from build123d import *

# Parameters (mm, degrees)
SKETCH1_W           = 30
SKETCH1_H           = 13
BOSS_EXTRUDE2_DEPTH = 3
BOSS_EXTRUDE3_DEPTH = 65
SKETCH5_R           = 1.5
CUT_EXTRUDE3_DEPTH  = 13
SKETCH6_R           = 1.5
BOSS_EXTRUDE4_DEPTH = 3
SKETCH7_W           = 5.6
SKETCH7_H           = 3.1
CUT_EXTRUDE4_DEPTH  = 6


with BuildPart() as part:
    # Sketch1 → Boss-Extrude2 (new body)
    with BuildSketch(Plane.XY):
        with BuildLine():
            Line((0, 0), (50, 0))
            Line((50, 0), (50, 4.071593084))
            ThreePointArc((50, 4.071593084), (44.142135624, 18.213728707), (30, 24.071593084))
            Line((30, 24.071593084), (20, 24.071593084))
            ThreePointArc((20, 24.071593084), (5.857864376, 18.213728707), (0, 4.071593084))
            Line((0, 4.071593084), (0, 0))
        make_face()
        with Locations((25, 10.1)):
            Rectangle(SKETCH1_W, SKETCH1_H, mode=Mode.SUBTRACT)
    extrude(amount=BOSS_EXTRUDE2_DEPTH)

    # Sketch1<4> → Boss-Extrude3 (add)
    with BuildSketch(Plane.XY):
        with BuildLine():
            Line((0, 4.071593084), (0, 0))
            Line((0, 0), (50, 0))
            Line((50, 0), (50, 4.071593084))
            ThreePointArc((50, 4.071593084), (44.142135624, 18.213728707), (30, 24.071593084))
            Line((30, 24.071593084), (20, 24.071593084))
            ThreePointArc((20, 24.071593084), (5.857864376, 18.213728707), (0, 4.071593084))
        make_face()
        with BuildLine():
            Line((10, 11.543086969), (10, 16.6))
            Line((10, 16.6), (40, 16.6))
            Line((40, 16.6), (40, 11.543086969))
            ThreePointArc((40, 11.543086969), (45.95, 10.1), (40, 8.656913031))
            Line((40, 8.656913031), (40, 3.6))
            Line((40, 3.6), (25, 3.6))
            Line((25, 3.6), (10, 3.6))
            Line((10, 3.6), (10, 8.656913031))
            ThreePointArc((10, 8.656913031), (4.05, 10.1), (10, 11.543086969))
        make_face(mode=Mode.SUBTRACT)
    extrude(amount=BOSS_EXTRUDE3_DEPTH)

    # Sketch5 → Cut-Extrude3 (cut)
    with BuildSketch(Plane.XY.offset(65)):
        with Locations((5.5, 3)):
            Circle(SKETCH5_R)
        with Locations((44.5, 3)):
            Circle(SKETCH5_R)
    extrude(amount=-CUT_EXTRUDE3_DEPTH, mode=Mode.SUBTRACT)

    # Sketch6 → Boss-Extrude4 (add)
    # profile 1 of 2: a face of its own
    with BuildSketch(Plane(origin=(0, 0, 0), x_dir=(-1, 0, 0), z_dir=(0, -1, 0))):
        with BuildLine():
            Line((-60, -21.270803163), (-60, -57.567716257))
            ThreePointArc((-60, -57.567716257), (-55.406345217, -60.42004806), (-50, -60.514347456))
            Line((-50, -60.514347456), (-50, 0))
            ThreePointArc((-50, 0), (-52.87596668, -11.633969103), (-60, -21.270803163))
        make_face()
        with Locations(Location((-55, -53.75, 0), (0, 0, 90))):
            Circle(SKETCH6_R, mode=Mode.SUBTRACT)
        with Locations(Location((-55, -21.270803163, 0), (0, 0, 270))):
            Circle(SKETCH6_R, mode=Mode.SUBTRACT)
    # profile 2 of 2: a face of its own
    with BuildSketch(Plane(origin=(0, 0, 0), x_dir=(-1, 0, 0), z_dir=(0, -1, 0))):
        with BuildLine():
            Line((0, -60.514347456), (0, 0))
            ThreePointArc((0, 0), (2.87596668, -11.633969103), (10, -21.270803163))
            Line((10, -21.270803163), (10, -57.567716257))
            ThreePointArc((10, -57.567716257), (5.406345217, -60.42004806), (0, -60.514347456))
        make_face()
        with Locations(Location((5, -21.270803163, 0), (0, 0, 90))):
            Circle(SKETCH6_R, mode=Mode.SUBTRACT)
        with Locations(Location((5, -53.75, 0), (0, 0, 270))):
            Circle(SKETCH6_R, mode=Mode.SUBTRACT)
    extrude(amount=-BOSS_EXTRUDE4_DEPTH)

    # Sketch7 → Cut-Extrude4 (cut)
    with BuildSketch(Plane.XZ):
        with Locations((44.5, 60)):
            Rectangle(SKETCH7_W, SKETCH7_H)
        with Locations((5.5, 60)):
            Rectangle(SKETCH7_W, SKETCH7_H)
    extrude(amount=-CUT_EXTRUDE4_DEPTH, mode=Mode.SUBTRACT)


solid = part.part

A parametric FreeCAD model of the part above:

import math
import FreeCAD as App
import Part
import Sketcher
from FreeCAD import Vector
Q = App.Units.Quantity

doc = App.newDocument("Part")
params = doc.addObject("Spreadsheet::Sheet", "Params")
for row, (alias, value) in enumerate([
    ("sketch1_radius", "20 mm"),
    ("sketch1_width", "50 mm"),
    ("sketch1_width2", "30 mm"),
    ("sketch1_height", "13 mm"),
    ("pad1_length", "3 mm"),
    ("sketch2_radius", "20 mm"),
    ("sketch2_width", "50 mm"),
    ("sketch2_width2", "30 mm"),
    ("sketch2_radius2", "3.15 mm"),
    ("pad2_length", "65 mm"),
    ("sketch3_diameter", "3 mm"),
    ("pocket1_length", "13 mm"),
    ("sketch4_diameter", "3 mm"),
    ("pad3_length", "3 mm"),
    ("sketch5_width", "5.6 mm"),
    ("sketch5_height", "3.1 mm"),
    ("pocket2_length", "6 mm"),
], start=1):
    params.set(f"A{row}", alias)
    params.set(f"B{row}", "=" + value)
    params.setAlias(f"B{row}", alias)

body = doc.addObject("PartDesign::Body", "Body")

sketch1 = body.newObject("Sketcher::SketchObject", "Sketch")
sketch1.AttachmentSupport = (doc.getObject("XY_Plane"), [""])
sketch1.MapMode = "FlatFace"
sketch1.addGeometry([
    Part.LineSegment(Vector(0, 0, 0), Vector(50, 0, 0)),
    Part.LineSegment(Vector(50, 0, 0), Vector(50, 4.1, 0)),
    Part.ArcOfCircle(Part.Circle(Vector(30, 4.1, 0), Vector(0, 0, 1), 20), math.radians(0), math.radians(90)),
    Part.LineSegment(Vector(30, 24.1, 0), Vector(20, 24.1, 0)),
    Part.ArcOfCircle(Part.Circle(Vector(20, 4.1, 0), Vector(0, 0, 1), 20), math.radians(90), math.radians(180)),
    Part.LineSegment(Vector(0, 4.1, 0), Vector(0, 0, 0)),
    Part.LineSegment(Vector(40, 3.6, 0), Vector(10, 3.6, 0)),
    Part.LineSegment(Vector(10, 3.6, 0), Vector(10, 16.6, 0)),
    Part.LineSegment(Vector(10, 16.6, 0), Vector(40, 16.6, 0)),
    Part.LineSegment(Vector(40, 16.6, 0), Vector(40, 3.6, 0)),
], False)
sketch1.addConstraint([
    Sketcher.Constraint("Coincident", 0, 2, 1, 1),
    Sketcher.Constraint("Tangent", 1, 2, 2, 1),
    Sketcher.Constraint("Tangent", 2, 2, 3, 1),
    Sketcher.Constraint("Tangent", 3, 2, 4, 1),
    Sketcher.Constraint("Tangent", 4, 2, 5, 1),
    Sketcher.Constraint("Coincident", 5, 2, 0, 1),
    Sketcher.Constraint("Coincident", 6, 2, 7, 1),
    Sketcher.Constraint("Coincident", 7, 2, 8, 1),
    Sketcher.Constraint("Coincident", 8, 2, 9, 1),
    Sketcher.Constraint("Coincident", 9, 2, 6, 1),
    Sketcher.Constraint("Horizontal", 0),
    Sketcher.Constraint("Vertical", 1),
    Sketcher.Constraint("Horizontal", 3),
    Sketcher.Constraint("Vertical", 5),
    Sketcher.Constraint("Horizontal", 6),
    Sketcher.Constraint("Vertical", 7),
    Sketcher.Constraint("Horizontal", 8),
    Sketcher.Constraint("Vertical", 9),
    Sketcher.Constraint("Coincident", 5, 2, -1, 1),
    Sketcher.Constraint("Equal", 2, 4),
    Sketcher.Constraint("Radius", 2, Q("20 mm")),
    Sketcher.Constraint("DistanceX", 0, 1, 0, 2, Q("50 mm")),
    Sketcher.Constraint("DistanceX", 6, 2, 6, 1, Q("30 mm")),
    Sketcher.Constraint("DistanceY", 7, 1, 7, 2, Q("13 mm")),
    Sketcher.Constraint("DistanceX", -1, 1, 6, 2, Q("10 mm")),
    Sketcher.Constraint("DistanceY", -1, 1, 6, 2, Q("3.6 mm")),
    Sketcher.Constraint("DistanceY", 1, 1, 1, 2, Q("4.071593 mm")),
])
sketch1.setExpression("Constraints[20]", "Params.sketch1_radius")
sketch1.setExpression("Constraints[21]", "Params.sketch1_width")
sketch1.setExpression("Constraints[22]", "Params.sketch1_width2")
sketch1.setExpression("Constraints[23]", "Params.sketch1_height")
pad1 = body.newObject("PartDesign::Pad", "Pad")
pad1.Profile = sketch1
pad1.setExpression("Length", "Params.pad1_length")

sketch2 = body.newObject("Sketcher::SketchObject", "Sketch001")
sketch2.AttachmentSupport = (doc.getObject("XY_Plane"), [""])
sketch2.MapMode = "FlatFace"
sketch2.addGeometry([
    Part.LineSegment(Vector(0, 4.1, 0), Vector(0, 0, 0)),
    Part.LineSegment(Vector(0, 0, 0), Vector(50, 0, 0)),
    Part.LineSegment(Vector(50, 0, 0), Vector(50, 4.1, 0)),
    Part.ArcOfCircle(Part.Circle(Vector(30, 4.1, 0), Vector(0, 0, 1), 20), math.radians(0), math.radians(90)),
    Part.LineSegment(Vector(30, 24.1, 0), Vector(20, 24.1, 0)),
    Part.ArcOfCircle(Part.Circle(Vector(20, 4.1, 0), Vector(0, 0, 1), 20), math.radians(90), math.radians(180)),
    Part.ArcOfCircle(Part.Circle(Vector(7.2, 10.1, 0), Vector(0, 0, 1), 3.1), math.radians(27), math.radians(333)),
    Part.LineSegment(Vector(10, 11.5, 0), Vector(10, 16.6, 0)),
    Part.LineSegment(Vector(10, 16.6, 0), Vector(40, 16.6, 0)),
    Part.LineSegment(Vector(40, 16.6, 0), Vector(40, 11.5, 0)),
    Part.ArcOfCircle(Part.Circle(Vector(42.8, 10.1, 0), Vector(0, 0, 1), 3.1), math.radians(-153), math.radians(153)),
    Part.LineSegment(Vector(40, 8.7, 0), Vector(40, 3.6, 0)),
    Part.LineSegment(Vector(40, 3.6, 0), Vector(10, 3.6, 0)),
    Part.LineSegment(Vector(10, 3.6, 0), Vector(10, 8.7, 0)),
], False)
sketch2.addConstraint([
    Sketcher.Constraint("Coincident", 0, 2, 1, 1),
    Sketcher.Constraint("Coincident", 1, 2, 2, 1),
    Sketcher.Constraint("Tangent", 2, 2, 3, 1),
    Sketcher.Constraint("Tangent", 3, 2, 4, 1),
    Sketcher.Constraint("Tangent", 4, 2, 5, 1),
    Sketcher.Constraint("Tangent", 5, 2, 0, 1),
    Sketcher.Constraint("Coincident", 6, 1, 7, 1),
    Sketcher.Constraint("Coincident", 7, 2, 8, 1),
    Sketcher.Constraint("Coincident", 8, 2, 9, 1),
    Sketcher.Constraint("Coincident", 9, 2, 10, 2),
    Sketcher.Constraint("Coincident", 10, 1, 11, 1),
    Sketcher.Constraint("Coincident", 11, 2, 12, 1),
    Sketcher.Constraint("Coincident", 12, 2, 13, 1),
    Sketcher.Constraint("Coincident", 13, 2, 6, 2),
    Sketcher.Constraint("Vertical", 0),
    Sketcher.Constraint("Horizontal", 1),
    Sketcher.Constraint("Vertical", 2),
    Sketcher.Constraint("Horizontal", 4),
    Sketcher.Constraint("Vertical", 7),
    Sketcher.Constraint("Horizontal", 8),
    Sketcher.Constraint("Vertical", 9),
    Sketcher.Constraint("Vertical", 11),
    Sketcher.Constraint("Horizontal", 12),
    Sketcher.Constraint("Vertical", 13),
    Sketcher.Constraint("Coincident", 0, 2, -1, 1),
    Sketcher.Constraint("Equal", 3, 5),
    Sketcher.Constraint("Equal", 6, 10),
    Sketcher.Constraint("Horizontal", 6, 3, 10, 3),
    Sketcher.Constraint("Horizontal", 6, 1, 9, 2),
    Sketcher.Constraint("Horizontal", 10, 1, 13, 2),
    Sketcher.Constraint("Vertical", 9, 2, 10, 1),
    Sketcher.Constraint("Equal", 9, 11),
    Sketcher.Constraint("Radius", 3, Q("20 mm")),
    Sketcher.Constraint("DistanceX", 1, 1, 1, 2, Q("50 mm")),
    Sketcher.Constraint("DistanceX", 8, 1, 8, 2, Q("30 mm")),
    Sketcher.Constraint("Radius", 6, Q("3.15 mm")),
    Sketcher.Constraint("DistanceX", -1, 1, 6, 1, Q("10 mm")),
    Sketcher.Constraint("DistanceX", -1, 1, 6, 3, Q("7.2 mm")),
    Sketcher.Constraint("DistanceY", -1, 1, 6, 3, Q("10.1 mm")),
    Sketcher.Constraint("DistanceY", -1, 1, 7, 2, Q("16.6 mm")),
    Sketcher.Constraint("DistanceY", 0, 2, 0, 1, Q("4.071593 mm")),
])
sketch2.setExpression("Constraints[32]", "Params.sketch2_radius")
sketch2.setExpression("Constraints[33]", "Params.sketch2_width")
sketch2.setExpression("Constraints[34]", "Params.sketch2_width2")
sketch2.setExpression("Constraints[35]", "Params.sketch2_radius2")
pad2 = body.newObject("PartDesign::Pad", "Pad001")
pad2.Profile = sketch2
pad2.setExpression("Length", "Params.pad2_length")

sketch3 = body.newObject("Sketcher::SketchObject", "Sketch002")
sketch3.AttachmentSupport = (doc.getObject("XY_Plane"), [""])
sketch3.MapMode = "FlatFace"
sketch3.AttachmentOffset = App.Placement(Vector(0, 0, 65), App.Rotation())
sketch3.addGeometry([
    Part.Circle(Vector(5.5, 3, 0), Vector(0, 0, 1), 1.5),
    Part.Circle(Vector(44.5, 3, 0), Vector(0, 0, 1), 1.5),
], False)
sketch3.addConstraint([
    Sketcher.Constraint("Equal", 0, 1),
    Sketcher.Constraint("Horizontal", 0, 3, 1, 3),
    Sketcher.Constraint("Diameter", 0, Q("3 mm")),
    Sketcher.Constraint("DistanceY", -1, 1, 0, 3, Q("3 mm")),
    Sketcher.Constraint("DistanceX", 0, 3, 1, 3, Q("39 mm")),
    Sketcher.Constraint("DistanceX", -1, 1, 0, 3, Q("5.5 mm")),
])
sketch3.setExpression("Constraints[2]", "Params.sketch3_diameter")
pocket1 = body.newObject("PartDesign::Pocket", "Pocket")
pocket1.Profile = sketch3
pocket1.setExpression("Length", "Params.pocket1_length")

sketch4 = body.newObject("Sketcher::SketchObject", "Sketch003")
sketch4.AttachmentSupport = (doc.getObject("XZ_Plane"), [""])
sketch4.MapMode = "FlatFace"
sketch4.addGeometry([
    Part.LineSegment(Vector(60, 21.3, 0), Vector(60, 57.6, 0)),
    Part.ArcOfCircle(Part.Circle(Vector(52.5, 50.7, 0), Vector(0, 0, 1), 10.2), math.radians(43), math.radians(104)),
    Part.LineSegment(Vector(50, 60.5, 0), Vector(50, 0, 0)),
    Part.ArcOfCircle(Part.Circle(Vector(80.6, -1.4, 0), Vector(0, 0, 1), 30.6), math.radians(132), math.radians(177)),
    Part.Circle(Vector(55, 53.8, 0), Vector(0, 0, 1), 1.5),
    Part.Circle(Vector(55, 21.3, 0), Vector(0, 0, 1), 1.5),
    Part.LineSegment(Vector(0, 0, 0), Vector(0, 60.5, 0)),
    Part.ArcOfCircle(Part.Circle(Vector(-2.5, 50.7, 0), Vector(0, 0, 1), 10.2), math.radians(76), math.radians(137)),
    Part.LineSegment(Vector(-10, 57.6, 0), Vector(-10, 21.3, 0)),
    Part.ArcOfCircle(Part.Circle(Vector(-30.6, -1.4, 0), Vector(0, 0, 1), 30.6), math.radians(3), math.radians(48)),
    Part.Circle(Vector(-5, 53.8, 0), Vector(0, 0, 1), 1.5),
    Part.Circle(Vector(-5, 21.3, 0), Vector(0, 0, 1), 1.5),
], False)
sketch4.addConstraint([
    Sketcher.Constraint("Coincident", 0, 2, 1, 1),
    Sketcher.Constraint("Coincident", 1, 2, 2, 1),
    Sketcher.Constraint("Coincident", 2, 2, 3, 2),
    Sketcher.Constraint("Coincident", 3, 1, 0, 1),
    Sketcher.Constraint("Coincident", 6, 2, 7, 1),
    Sketcher.Constraint("Coincident", 7, 2, 8, 1),
    Sketcher.Constraint("Coincident", 8, 2, 9, 2),
    Sketcher.Constraint("Coincident", 9, 1, 6, 1),
    Sketcher.Constraint("Vertical", 0),
    Sketcher.Constraint("Vertical", 2),
    Sketcher.Constraint("Vertical", 6),
    Sketcher.Constraint("Vertical", 8),
    Sketcher.Constraint("Coincident", 9, 1, -1, 1),
    Sketcher.Constraint("Equal", 4, 5),
    Sketcher.Constraint("Equal", 1, 7),
    Sketcher.Constraint("Equal", 3, 9),
    Sketcher.Constraint("Equal", 5, 10),
    Sketcher.Constraint("Equal", 10, 11),
    Sketcher.Constraint("PointOnObject", 2, 2, -1),
    Sketcher.Constraint("Horizontal", 1, 3, 7, 3),
    Sketcher.Constraint("Horizontal", 3, 3, 9, 3),
    Sketcher.Constraint("Horizontal", 4, 3, 10, 3),
    Sketcher.Constraint("Horizontal", 5, 3, 11, 3),
    Sketcher.Constraint("Horizontal", 11, 3, 3, 1),
    Sketcher.Constraint("Horizontal", 1, 2, 6, 2),
    Sketcher.Constraint("Horizontal", 0, 2, 7, 2),
    Sketcher.Constraint("Vertical", 4, 3, 5, 3),
    Sketcher.Constraint("Vertical", 10, 3, 11, 3),
    Sketcher.Constraint("Diameter", 4, Q("3 mm")),
    Sketcher.Constraint("DistanceX", -1, 1, 4, 3, Q("55 mm")),
    Sketcher.Constraint("DistanceX", 10, 3, -1, 1, Q("5 mm")),
    Sketcher.Constraint("DistanceX", -1, 1, 0, 2, Q("60 mm")),
    Sketcher.Constraint("DistanceX", -1, 1, 1, 2, Q("50 mm")),
    Sketcher.Constraint("DistanceY", -1, 1, 4, 3, Q("53.75 mm")),
    Sketcher.Constraint("Radius", 1, Q("10.168578 mm")),
    Sketcher.Constraint("Radius", 3, Q("30.595914 mm")),
    Sketcher.Constraint("DistanceY", 0, 1, 0, 2, Q("36.296913 mm")),
    Sketcher.Constraint("DistanceY", 2, 2, 2, 1, Q("60.514347 mm")),
    Sketcher.Constraint("DistanceX", -1, 1, 1, 3, Q("52.532218 mm")),
])
sketch4.setExpression("Constraints[28]", "Params.sketch4_diameter")
pad3 = body.newObject("PartDesign::Pad", "Pad002")
pad3.Profile = sketch4
pad3.setExpression("Length", "Params.pad3_length")
pad3.Reversed = True

sketch5 = body.newObject("Sketcher::SketchObject", "Sketch004")
sketch5.AttachmentSupport = (doc.getObject("XZ_Plane"), [""])
sketch5.MapMode = "FlatFace"
sketch5.addGeometry([
    Part.LineSegment(Vector(41.7, 61.5, 0), Vector(41.7, 58.5, 0)),
    Part.LineSegment(Vector(41.7, 58.5, 0), Vector(47.3, 58.5, 0)),
    Part.LineSegment(Vector(47.3, 58.5, 0), Vector(47.3, 61.5, 0)),
    Part.LineSegment(Vector(47.3, 61.5, 0), Vector(41.7, 61.5, 0)),
    Part.LineSegment(Vector(2.7, 61.5, 0), Vector(2.7, 58.5, 0)),
    Part.LineSegment(Vector(2.7, 58.5, 0), Vector(8.3, 58.5, 0)),
    Part.LineSegment(Vector(8.3, 58.5, 0), Vector(8.3, 61.5, 0)),
    Part.LineSegment(Vector(8.3, 61.5, 0), Vector(2.7, 61.5, 0)),
], False)
sketch5.addConstraint([
    Sketcher.Constraint("Coincident", 0, 2, 1, 1),
    Sketcher.Constraint("Coincident", 1, 2, 2, 1),
    Sketcher.Constraint("Coincident", 2, 2, 3, 1),
    Sketcher.Constraint("Coincident", 3, 2, 0, 1),
    Sketcher.Constraint("Coincident", 4, 2, 5, 1),
    Sketcher.Constraint("Coincident", 5, 2, 6, 1),
    Sketcher.Constraint("Coincident", 6, 2, 7, 1),
    Sketcher.Constraint("Coincident", 7, 2, 4, 1),
    Sketcher.Constraint("Vertical", 0),
    Sketcher.Constraint("Horizontal", 1),
    Sketcher.Constraint("Vertical", 2),
    Sketcher.Constraint("Horizontal", 3),
    Sketcher.Constraint("Vertical", 4),
    Sketcher.Constraint("Horizontal", 5),
    Sketcher.Constraint("Vertical", 6),
    Sketcher.Constraint("Horizontal", 7),
    Sketcher.Constraint("Horizontal", 1, 2, 4, 2),
    Sketcher.Constraint("Horizontal", 3, 2, 6, 2),
    Sketcher.Constraint("Equal", 3, 5),
    Sketcher.Constraint("DistanceX", 1, 1, 1, 2, Q("5.6 mm")),
    Sketcher.Constraint("DistanceY", 0, 2, 0, 1, Q("3.1 mm")),
    Sketcher.Constraint("DistanceX", 4, 2, 0, 2, Q("39 mm")),
    Sketcher.Constraint("DistanceX", -1, 1, 0, 2, Q("41.7 mm")),
    Sketcher.Constraint("DistanceY", -1, 1, 0, 2, Q("58.45 mm")),
])
sketch5.setExpression("Constraints[19]", "Params.sketch5_width")
sketch5.setExpression("Constraints[20]", "Params.sketch5_height")
pocket2 = body.newObject("PartDesign::Pocket", "Pocket001")
pocket2.Profile = sketch5
pocket2.setExpression("Length", "Params.pocket2_length")

doc.recompute()
